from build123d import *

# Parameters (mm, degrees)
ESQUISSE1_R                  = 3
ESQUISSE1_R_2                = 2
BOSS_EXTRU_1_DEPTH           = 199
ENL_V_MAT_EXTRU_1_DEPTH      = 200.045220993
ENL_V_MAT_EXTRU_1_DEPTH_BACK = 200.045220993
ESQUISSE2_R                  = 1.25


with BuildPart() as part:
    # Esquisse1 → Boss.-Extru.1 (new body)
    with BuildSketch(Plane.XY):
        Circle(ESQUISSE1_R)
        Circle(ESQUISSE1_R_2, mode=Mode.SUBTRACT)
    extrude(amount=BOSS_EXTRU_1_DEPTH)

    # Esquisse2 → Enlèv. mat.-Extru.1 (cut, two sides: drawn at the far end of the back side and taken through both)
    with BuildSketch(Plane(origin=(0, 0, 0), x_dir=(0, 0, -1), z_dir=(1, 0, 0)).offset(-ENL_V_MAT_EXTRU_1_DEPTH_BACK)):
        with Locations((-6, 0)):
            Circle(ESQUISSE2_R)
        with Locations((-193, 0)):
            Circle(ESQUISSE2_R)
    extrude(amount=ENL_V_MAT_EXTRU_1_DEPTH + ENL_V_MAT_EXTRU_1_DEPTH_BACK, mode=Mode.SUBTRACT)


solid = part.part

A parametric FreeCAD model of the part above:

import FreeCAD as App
import Part
import Sketcher
Q = App.Units.Quantity

doc = App.newDocument("Part")
body = doc.addObject("PartDesign::Body", "Body")

# Sketch on XY plane
sketch1 = body.newObject("Sketcher::SketchObject", "Sketch")
sketch1.AttachmentSupport = (doc.getObject("XY_Plane"), [""])
sketch1.MapMode = "FlatFace"
sketch1.addGeometry([
    Part.Circle(App.Vector(0, 0, 0), App.Vector(0, 0, 1), 3),
    Part.Circle(App.Vector(0, 0, 0), App.Vector(0, 0, 1), 2),
], False)
sketch1.addConstraint([
    Sketcher.Constraint("Coincident", 0, 3, -1, 1),
    Sketcher.Constraint("Coincident", 1, 3, -1, 1),
    Sketcher.Constraint("Diameter", 0, Q("6 mm")),
    Sketcher.Constraint("Diameter", 1, Q("4 mm")),
])
pad1 = body.newObject("PartDesign::Pad", "Pad")
pad1.Profile = sketch1
pad1.Length = 199

# Sketch on YZ plane
sketch2 = body.newObject("Sketcher::SketchObject", "Sketch001")
sketch2.AttachmentSupport = (doc.getObject("YZ_Plane"), [""])
sketch2.MapMode = "FlatFace"
sketch2.addGeometry([
    Part.Circle(App.Vector(0, 6, 0), App.Vector(0, 0, 1), 1.2),
    Part.Circle(App.Vector(0, 193, 0), App.Vector(0, 0, 1), 1.2),
], False)
sketch2.addConstraint([
    Sketcher.Constraint("Equal", 0, 1),
    Sketcher.Constraint("PointOnObject", 0, 3, -2),
    Sketcher.Constraint("PointOnObject", 1, 3, -2),
    Sketcher.Constraint("Diameter", 0, Q("2.5 mm")),
    Sketcher.Constraint("DistanceY", -1, 1, 0, 3, Q("6 mm")),
    Sketcher.Constraint("DistanceY", -1, 1, 1, 3, Q("193 mm")),
])
pocket1 = body.newObject("PartDesign::Pocket", "Pocket")
pocket1.Profile = sketch2
pocket1.Type = "ThroughAll"
pocket1.Midplane = True

doc.recompute()
